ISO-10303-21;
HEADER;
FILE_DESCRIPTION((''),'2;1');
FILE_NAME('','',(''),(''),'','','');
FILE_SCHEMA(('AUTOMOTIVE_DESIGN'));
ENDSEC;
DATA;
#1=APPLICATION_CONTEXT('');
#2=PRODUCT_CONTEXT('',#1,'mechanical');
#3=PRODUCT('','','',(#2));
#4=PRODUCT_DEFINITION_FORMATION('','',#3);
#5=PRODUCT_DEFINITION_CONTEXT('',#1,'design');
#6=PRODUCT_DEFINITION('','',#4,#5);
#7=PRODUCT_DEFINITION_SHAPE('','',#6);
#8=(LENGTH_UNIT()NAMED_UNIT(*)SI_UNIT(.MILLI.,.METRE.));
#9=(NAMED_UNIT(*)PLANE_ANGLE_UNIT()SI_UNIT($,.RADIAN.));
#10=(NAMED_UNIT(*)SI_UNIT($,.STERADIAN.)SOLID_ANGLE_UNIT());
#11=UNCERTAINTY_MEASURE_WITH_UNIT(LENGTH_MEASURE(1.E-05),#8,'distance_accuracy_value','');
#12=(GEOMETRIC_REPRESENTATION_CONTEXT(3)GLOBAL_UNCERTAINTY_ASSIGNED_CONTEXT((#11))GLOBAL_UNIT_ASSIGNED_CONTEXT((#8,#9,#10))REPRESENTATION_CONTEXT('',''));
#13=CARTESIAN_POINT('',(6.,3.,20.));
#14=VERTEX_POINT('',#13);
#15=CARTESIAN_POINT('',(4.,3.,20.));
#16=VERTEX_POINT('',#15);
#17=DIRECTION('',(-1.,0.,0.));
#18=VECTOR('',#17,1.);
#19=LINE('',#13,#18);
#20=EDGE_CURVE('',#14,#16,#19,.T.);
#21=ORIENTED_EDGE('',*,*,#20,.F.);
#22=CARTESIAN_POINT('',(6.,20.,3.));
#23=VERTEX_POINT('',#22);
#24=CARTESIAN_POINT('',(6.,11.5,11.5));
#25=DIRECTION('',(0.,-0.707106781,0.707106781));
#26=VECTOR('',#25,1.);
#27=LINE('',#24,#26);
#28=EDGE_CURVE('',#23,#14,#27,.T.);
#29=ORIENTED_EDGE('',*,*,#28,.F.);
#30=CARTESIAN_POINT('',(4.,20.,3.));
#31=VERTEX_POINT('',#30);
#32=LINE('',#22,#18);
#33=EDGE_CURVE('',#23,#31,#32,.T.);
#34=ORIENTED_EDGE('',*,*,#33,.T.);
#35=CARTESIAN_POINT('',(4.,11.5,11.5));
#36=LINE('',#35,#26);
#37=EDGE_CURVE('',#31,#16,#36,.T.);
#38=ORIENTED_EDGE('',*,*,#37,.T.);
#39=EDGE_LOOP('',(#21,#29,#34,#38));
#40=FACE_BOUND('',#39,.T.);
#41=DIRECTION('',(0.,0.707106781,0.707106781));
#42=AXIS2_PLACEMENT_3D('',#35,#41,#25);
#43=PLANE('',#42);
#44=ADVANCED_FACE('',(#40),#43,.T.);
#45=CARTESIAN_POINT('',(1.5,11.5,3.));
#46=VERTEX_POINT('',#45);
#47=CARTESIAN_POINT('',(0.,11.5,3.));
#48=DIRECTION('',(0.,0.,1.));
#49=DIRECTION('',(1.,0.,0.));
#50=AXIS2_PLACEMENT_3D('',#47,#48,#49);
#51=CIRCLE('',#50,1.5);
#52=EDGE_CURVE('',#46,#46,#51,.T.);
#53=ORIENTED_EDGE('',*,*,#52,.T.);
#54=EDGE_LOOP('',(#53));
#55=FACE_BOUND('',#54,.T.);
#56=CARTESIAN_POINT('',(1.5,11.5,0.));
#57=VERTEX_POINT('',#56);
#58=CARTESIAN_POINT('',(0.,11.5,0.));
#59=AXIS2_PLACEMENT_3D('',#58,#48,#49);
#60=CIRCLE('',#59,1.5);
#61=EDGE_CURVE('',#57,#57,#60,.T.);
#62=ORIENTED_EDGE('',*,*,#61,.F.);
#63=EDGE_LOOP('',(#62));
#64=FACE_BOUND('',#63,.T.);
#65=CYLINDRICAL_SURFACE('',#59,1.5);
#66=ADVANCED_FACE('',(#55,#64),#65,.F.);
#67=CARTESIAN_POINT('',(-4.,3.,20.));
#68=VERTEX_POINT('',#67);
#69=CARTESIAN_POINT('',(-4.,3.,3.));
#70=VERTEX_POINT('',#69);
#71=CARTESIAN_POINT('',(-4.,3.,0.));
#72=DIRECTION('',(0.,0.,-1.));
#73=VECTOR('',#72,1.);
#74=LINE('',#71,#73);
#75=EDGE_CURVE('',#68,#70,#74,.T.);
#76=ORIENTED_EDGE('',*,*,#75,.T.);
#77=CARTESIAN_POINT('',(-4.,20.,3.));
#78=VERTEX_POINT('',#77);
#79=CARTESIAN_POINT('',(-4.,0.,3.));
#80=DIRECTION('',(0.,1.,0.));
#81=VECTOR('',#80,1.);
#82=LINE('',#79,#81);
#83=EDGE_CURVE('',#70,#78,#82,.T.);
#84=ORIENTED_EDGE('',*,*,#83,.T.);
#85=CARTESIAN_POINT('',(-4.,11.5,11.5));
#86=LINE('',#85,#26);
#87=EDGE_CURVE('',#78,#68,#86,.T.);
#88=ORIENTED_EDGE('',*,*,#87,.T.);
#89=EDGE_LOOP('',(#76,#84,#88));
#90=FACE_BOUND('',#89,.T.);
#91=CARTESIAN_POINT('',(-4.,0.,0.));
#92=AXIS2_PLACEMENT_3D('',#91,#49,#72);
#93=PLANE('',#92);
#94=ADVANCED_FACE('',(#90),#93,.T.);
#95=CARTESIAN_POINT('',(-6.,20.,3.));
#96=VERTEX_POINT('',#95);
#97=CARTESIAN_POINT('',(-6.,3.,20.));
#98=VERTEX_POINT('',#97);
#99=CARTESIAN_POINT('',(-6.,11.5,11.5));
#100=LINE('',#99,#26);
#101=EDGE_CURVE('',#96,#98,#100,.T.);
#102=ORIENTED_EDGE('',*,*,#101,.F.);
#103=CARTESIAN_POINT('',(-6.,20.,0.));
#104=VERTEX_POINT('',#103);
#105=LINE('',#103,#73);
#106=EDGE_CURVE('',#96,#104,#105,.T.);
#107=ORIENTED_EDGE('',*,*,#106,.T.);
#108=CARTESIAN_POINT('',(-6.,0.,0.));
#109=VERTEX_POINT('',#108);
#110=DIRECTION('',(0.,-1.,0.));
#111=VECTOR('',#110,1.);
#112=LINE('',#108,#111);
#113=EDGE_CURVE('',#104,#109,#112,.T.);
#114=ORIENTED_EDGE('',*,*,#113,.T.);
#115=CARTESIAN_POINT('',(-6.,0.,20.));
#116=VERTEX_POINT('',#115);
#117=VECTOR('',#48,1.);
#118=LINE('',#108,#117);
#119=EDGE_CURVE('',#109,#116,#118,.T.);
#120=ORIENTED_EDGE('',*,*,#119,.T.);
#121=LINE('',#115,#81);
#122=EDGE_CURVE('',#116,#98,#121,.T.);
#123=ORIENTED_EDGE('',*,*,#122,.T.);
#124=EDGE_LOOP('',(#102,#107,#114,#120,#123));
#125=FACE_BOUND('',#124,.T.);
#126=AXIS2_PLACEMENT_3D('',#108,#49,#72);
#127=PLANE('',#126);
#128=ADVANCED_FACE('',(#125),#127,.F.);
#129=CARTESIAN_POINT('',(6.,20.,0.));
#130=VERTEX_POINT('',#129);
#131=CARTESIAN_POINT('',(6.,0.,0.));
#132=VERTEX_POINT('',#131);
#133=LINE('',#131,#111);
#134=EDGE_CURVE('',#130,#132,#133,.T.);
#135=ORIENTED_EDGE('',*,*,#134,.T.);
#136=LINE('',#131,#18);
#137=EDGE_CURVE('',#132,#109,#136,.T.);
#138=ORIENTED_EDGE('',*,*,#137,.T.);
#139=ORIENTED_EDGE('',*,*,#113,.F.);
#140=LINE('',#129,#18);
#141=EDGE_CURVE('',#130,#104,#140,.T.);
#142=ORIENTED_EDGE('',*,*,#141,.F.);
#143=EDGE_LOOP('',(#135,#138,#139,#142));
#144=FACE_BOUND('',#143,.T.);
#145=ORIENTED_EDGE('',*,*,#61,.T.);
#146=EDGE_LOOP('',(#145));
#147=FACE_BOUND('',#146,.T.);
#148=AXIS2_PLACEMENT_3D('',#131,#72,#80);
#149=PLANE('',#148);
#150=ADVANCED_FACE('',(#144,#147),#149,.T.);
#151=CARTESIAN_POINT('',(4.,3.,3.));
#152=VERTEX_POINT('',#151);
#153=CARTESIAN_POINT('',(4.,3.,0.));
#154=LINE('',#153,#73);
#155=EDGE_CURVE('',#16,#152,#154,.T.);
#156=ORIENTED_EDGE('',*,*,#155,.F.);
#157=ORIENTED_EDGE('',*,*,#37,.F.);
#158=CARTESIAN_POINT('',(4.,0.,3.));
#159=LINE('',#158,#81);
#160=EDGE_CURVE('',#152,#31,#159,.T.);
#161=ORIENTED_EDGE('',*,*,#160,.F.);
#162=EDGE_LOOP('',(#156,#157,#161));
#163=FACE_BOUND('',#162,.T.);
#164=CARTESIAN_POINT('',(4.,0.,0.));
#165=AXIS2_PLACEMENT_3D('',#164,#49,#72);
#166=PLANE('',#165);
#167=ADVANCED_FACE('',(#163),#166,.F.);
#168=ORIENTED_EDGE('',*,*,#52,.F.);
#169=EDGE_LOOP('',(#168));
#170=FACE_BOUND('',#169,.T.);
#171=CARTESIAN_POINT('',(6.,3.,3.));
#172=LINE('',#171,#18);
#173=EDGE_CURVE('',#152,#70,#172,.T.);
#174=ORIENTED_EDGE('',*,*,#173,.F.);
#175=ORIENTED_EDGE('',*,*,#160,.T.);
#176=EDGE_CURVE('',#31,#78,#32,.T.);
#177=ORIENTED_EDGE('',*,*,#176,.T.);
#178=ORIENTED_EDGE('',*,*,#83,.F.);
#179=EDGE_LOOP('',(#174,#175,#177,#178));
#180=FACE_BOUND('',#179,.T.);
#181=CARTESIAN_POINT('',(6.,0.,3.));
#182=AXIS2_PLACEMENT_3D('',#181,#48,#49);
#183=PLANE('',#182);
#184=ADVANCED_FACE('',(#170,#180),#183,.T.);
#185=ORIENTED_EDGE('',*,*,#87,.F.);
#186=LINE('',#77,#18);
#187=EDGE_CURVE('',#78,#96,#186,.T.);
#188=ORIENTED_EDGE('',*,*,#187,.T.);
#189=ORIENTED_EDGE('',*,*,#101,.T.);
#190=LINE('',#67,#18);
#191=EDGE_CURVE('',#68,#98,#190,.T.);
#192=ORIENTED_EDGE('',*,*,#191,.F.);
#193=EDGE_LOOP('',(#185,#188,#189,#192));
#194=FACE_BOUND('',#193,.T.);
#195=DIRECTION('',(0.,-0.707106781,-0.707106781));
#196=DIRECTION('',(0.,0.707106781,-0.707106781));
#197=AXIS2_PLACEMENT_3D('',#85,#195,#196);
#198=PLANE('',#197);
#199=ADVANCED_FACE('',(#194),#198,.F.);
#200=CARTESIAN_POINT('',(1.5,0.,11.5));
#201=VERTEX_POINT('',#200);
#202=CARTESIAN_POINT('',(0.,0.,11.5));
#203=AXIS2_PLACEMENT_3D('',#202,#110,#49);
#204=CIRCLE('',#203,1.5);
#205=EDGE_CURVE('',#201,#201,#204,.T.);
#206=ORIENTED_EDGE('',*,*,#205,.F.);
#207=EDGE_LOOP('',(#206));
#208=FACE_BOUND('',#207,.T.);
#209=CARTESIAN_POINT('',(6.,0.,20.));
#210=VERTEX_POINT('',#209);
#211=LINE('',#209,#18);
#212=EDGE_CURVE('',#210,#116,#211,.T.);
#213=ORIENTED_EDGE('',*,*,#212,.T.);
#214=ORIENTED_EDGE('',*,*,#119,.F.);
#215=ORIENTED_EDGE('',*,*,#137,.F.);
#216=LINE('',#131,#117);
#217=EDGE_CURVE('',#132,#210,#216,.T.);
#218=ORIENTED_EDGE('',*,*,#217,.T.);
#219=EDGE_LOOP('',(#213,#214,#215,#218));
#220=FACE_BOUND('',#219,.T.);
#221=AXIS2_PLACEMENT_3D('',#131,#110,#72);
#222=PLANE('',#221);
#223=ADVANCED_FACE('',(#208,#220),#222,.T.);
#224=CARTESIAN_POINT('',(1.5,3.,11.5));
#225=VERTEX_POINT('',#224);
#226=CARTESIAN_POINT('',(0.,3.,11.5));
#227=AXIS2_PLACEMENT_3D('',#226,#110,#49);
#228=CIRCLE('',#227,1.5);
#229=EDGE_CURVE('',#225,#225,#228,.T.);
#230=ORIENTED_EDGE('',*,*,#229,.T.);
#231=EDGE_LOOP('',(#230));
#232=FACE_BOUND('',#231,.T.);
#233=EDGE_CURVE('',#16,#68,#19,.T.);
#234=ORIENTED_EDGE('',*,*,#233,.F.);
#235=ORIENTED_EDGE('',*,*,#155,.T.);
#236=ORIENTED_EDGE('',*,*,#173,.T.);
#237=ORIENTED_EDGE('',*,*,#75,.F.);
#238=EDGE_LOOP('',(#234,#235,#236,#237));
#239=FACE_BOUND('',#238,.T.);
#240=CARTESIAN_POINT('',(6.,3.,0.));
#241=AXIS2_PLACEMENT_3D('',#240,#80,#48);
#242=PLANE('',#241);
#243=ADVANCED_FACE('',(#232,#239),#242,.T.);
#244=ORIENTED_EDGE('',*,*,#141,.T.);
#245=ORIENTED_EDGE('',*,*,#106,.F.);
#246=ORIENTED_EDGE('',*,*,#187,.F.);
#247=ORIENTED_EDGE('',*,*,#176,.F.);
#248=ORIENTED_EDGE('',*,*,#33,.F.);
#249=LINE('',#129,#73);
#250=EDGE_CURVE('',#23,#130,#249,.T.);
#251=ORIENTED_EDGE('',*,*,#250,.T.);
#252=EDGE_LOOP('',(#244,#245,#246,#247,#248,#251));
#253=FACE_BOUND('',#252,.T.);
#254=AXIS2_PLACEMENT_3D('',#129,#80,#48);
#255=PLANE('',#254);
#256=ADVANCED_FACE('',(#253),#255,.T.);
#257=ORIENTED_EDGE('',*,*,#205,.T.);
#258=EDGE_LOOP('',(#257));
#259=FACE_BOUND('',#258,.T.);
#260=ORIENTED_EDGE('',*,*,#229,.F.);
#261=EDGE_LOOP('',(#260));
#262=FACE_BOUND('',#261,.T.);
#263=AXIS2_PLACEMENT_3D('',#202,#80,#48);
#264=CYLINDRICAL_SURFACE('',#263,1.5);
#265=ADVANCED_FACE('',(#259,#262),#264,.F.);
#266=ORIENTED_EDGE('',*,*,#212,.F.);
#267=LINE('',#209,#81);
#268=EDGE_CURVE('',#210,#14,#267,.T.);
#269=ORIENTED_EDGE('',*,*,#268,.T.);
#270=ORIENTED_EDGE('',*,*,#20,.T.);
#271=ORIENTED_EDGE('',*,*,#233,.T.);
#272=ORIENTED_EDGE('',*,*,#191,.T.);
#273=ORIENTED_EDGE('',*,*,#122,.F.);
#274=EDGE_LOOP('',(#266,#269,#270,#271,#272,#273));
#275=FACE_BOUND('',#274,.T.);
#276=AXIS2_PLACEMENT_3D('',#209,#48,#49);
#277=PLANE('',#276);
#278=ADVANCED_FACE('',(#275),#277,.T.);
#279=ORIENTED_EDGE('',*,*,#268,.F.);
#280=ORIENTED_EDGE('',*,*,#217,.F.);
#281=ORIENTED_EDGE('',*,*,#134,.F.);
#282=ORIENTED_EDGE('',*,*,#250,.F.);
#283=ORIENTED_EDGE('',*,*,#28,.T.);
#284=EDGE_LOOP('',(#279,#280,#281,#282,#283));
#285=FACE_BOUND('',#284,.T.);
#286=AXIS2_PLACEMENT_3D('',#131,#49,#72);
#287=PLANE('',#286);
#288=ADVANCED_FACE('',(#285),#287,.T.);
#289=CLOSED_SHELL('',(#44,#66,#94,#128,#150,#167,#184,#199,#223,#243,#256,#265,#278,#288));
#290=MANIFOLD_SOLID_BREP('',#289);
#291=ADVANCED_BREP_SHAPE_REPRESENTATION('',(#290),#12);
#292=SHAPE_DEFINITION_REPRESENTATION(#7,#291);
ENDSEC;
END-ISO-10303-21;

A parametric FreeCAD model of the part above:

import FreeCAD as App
import Part
import Sketcher
from FreeCAD import Vector
Q = App.Units.Quantity

doc = App.newDocument("Part")
params = doc.addObject("Spreadsheet::Sheet", "Params")
for row, (alias, value) in enumerate([
    ("sketch1_width", "20 mm"),
    ("sketch1_width2", "17 mm"),
    ("pad1_length", "12 mm"),
    ("sketch2_width", "17 mm"),
    ("pad2_length", "2 mm"),
    ("sketch3_width", "17 mm"),
    ("pad3_length", "2 mm"),
    ("sketch4_diameter", "3 mm"),
], start=1):
    params.set(f"A{row}", alias)
    params.set(f"B{row}", "=" + value)
    params.setAlias(f"B{row}", alias)

body = doc.addObject("PartDesign::Body", "Body")

# Sketch on YZ plane
sketch1 = doc.addObject("Sketcher::SketchObject", "Sketch")
body.addObject(sketch1)
sketch1.AttachmentSupport = (doc.YZ_Plane, [""])
sketch1.MapMode = "FlatFace"
sketch1.addGeometry(Part.LineSegment(Vector(0, 0, 0), Vector(20, 0, 0)), False)
sketch1.addGeometry(Part.LineSegment(Vector(20, 0, 0), Vector(20, 3, 0)), False)
sketch1.addGeometry(Part.LineSegment(Vector(20, 3, 0), Vector(3, 3, 0)), False)
sketch1.addGeometry(Part.LineSegment(Vector(3, 3, 0), Vector(3, 20, 0)), False)
sketch1.addGeometry(Part.LineSegment(Vector(3, 20, 0), Vector(0, 20, 0)), False)
sketch1.addGeometry(Part.LineSegment(Vector(0, 20, 0), Vector(0, 0, 0)), False)
sketch1.addConstraint(Sketcher.Constraint("Coincident", 0, 2, 1, 1))
sketch1.addConstraint(Sketcher.Constraint("Coincident", 1, 2, 2, 1))
sketch1.addConstraint(Sketcher.Constraint("Coincident", 2, 2, 3, 1))
sketch1.addConstraint(Sketcher.Constraint("Coincident", 3, 2, 4, 1))
sketch1.addConstraint(Sketcher.Constraint("Coincident", 4, 2, 5, 1))
sketch1.addConstraint(Sketcher.Constraint("Coincident", 5, 2, 0, 1))
sketch1.addConstraint(Sketcher.Constraint("Horizontal", 0))
sketch1.addConstraint(Sketcher.Constraint("Vertical", 1))
sketch1.addConstraint(Sketcher.Constraint("Horizontal", 2))
sketch1.addConstraint(Sketcher.Constraint("Vertical", 3))
sketch1.addConstraint(Sketcher.Constraint("Horizontal", 4))
sketch1.addConstraint(Sketcher.Constraint("Vertical", 5))
sketch1.addConstraint(Sketcher.Constraint("Coincident", 5, 2, -1, 1))
sketch1.addConstraint(Sketcher.Constraint("Equal", 4, 1))
sketch1.addConstraint(Sketcher.Constraint("Equal", 2, 3))
sketch1.addConstraint(Sketcher.Constraint("DistanceX", 0, 1, 0, 2, Q("20 mm")))
sketch1.addConstraint(Sketcher.Constraint("DistanceX", 2, 2, 2, 1, Q("17 mm")))
sketch1.setExpression("Constraints[15]", "Params.sketch1_width")
sketch1.setExpression("Constraints[16]", "Params.sketch1_width2")
pad1 = doc.addObject("PartDesign::Pad", "Pad")
body.addObject(pad1)
pad1.Profile = sketch1
pad1.setExpression("Length", "Params.pad1_length")
pad1.Midplane = True

# Sketch on YZ plane
sketch2 = doc.addObject("Sketcher::SketchObject", "Sketch001")
body.addObject(sketch2)
sketch2.AttachmentSupport = (doc.YZ_Plane, [""])
sketch2.MapMode = "FlatFace"
sketch2.AttachmentOffset = App.Placement(Vector(0, 0, 6), App.Rotation())
sketch2.addGeometry(Part.LineSegment(Vector(3, 3, 0), Vector(20, 3, 0)), False)
sketch2.addGeometry(Part.LineSegment(Vector(20, 3, 0), Vector(3, 20, 0)), False)
sketch2.addGeometry(Part.LineSegment(Vector(3, 20, 0), Vector(3, 3, 0)), False)
sketch2.addConstraint(Sketcher.Constraint("Coincident", 0, 2, 1, 1))
sketch2.addConstraint(Sketcher.Constraint("Coincident", 1, 2, 2, 1))
sketch2.addConstraint(Sketcher.Constraint("Coincident", 2, 2, 0, 1))
sketch2.addConstraint(Sketcher.Constraint("Horizontal", 0))
sketch2.addConstraint(Sketcher.Constraint("Vertical", 2))
sketch2.addConstraint(Sketcher.Constraint("Equal", 0, 2))
sketch2.addConstraint(Sketcher.Constraint("DistanceX", 0, 1, 0, 2, Q("17 mm")))
sketch2.addConstraint(Sketcher.Constraint("DistanceX", -1, 1, 0, 2, Q("20 mm")))
sketch2.addConstraint(Sketcher.Constraint("DistanceY", -1, 1, 0, 2, Q("3 mm")))
sketch2.setExpression("Constraints[6]", "Params.sketch2_width")
pad2 = doc.addObject("PartDesign::Pad", "Pad001")
body.addObject(pad2)
pad2.Profile = sketch2
pad2.setExpression("Length", "Params.pad2_length")
pad2.Reversed = True

# Sketch on YZ plane
sketch3 = doc.addObject("Sketcher::SketchObject", "Sketch002")
body.addObject(sketch3)
sketch3.AttachmentSupport = (doc.YZ_Plane, [""])
sketch3.MapMode = "FlatFace"
sketch3.AttachmentOffset = App.Placement(Vector(0, 0, -6), App.Rotation())
sketch3.addGeometry(Part.LineSegment(Vector(3, 3, 0), Vector(20, 3, 0)), False)
sketch3.addGeometry(Part.LineSegment(Vector(20, 3, 0), Vector(3, 20, 0)), False)
sketch3.addGeometry(Part.LineSegment(Vector(3, 20, 0), Vector(3, 3, 0)), False)
sketch3.addConstraint(Sketcher.Constraint("Coincident", 0, 2, 1, 1))
sketch3.addConstraint(Sketcher.Constraint("Coincident", 1, 2, 2, 1))
sketch3.addConstraint(Sketcher.Constraint("Coincident", 2, 2, 0, 1))
sketch3.addConstraint(Sketcher.Constraint("Horizontal", 0))
sketch3.addConstraint(Sketcher.Constraint("Vertical", 2))
sketch3.addConstraint(Sketcher.Constraint("Equal", 0, 2))
sketch3.addConstraint(Sketcher.Constraint("DistanceX", 0, 1, 0, 2, Q("17 mm")))
sketch3.addConstraint(Sketcher.Constraint("DistanceX", -1, 1, 0, 2, Q("20 mm")))
sketch3.addConstraint(Sketcher.Constraint("DistanceY", -1, 1, 0, 2, Q("3 mm")))
sketch3.setExpression("Constraints[6]", "Params.sketch3_width")
pad3 = doc.addObject("PartDesign::Pad", "Pad002")
body.addObject(pad3)
pad3.Profile = sketch3
pad3.setExpression("Length", "Params.pad3_length")

# Sketch on XY plane
sketch4 = doc.addObject("Sketcher::SketchObject", "Sketch003")
body.addObject(sketch4)
sketch4.AttachmentSupport = (doc.XY_Plane, [""])
sketch4.MapMode = "FlatFace"
sketch4.AttachmentOffset = App.Placement(Vector(0, 0, 3), App.Rotation())
sketch4.addGeometry(Part.Circle(Vector(0, 11.5, 0), Vector(0, 0, 1), 1.5), False)
sketch4.addConstraint(Sketcher.Constraint("PointOnObject", 0, 3, -2))
sketch4.addConstraint(Sketcher.Constraint("Diameter", 0, Q("3 mm")))
sketch4.addConstraint(Sketcher.Constraint("DistanceY", -1, 1, 0, 3, Q("11.5 mm")))
sketch4.setExpression("Constraints[1]", "Params.sketch4_diameter")
pocket1 = doc.addObject("PartDesign::Pocket", "Pocket")
body.addObject(pocket1)
pocket1.Profile = sketch4
pocket1.Type = "ThroughAll"
doc.recompute()

datumplane = doc.addObject("PartDesign::Plane", "DatumPlane")
body.addObject(datumplane)
datumplane.Placement = App.Placement(Vector(0, 0, 0), App.Rotation(Vector(0, 0.707106781, 0.707106781), Vector(-1, 0, 0), Vector(0, -0.707106781, 0.707106781), "ZXY"))
mirrored = doc.addObject("PartDesign::Mirrored", "Mirrored")
body.addObject(mirrored)
mirrored.Originals = [pocket1]
mirrored.MirrorPlane = (datumplane, [""])
body.Tip = mirrored

doc.recompute()
